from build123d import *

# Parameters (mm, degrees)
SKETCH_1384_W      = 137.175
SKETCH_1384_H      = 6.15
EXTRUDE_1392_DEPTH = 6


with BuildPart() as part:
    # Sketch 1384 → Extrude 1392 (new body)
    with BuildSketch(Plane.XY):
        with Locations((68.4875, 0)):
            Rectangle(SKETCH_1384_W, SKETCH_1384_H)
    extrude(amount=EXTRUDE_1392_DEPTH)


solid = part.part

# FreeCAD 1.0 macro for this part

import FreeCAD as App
import Part
import Sketcher
Q = App.Units.Quantity

doc = App.newDocument("Part")
params = doc.addObject("Spreadsheet::Sheet", "Params")
for row, (alias, value) in enumerate([
    ("sketch1_height", "6.15 mm"),
    ("pad1_length", "6 mm"),
], start=1):
    params.set(f"A{row}", alias)
    params.set(f"B{row}", "=" + value)
    params.setAlias(f"B{row}", alias)

body = doc.addObject("PartDesign::Body", "Body")

# Sketch on XY plane
sketch1 = body.newObject("Sketcher::SketchObject", "Sketch")
sketch1.AttachmentSupport = (doc.getObject("XY_Plane"), [""])
sketch1.MapMode = "FlatFace"
sketch1.addGeometry(Part.LineSegment(App.Vector(-0.1, 3.075, 0), App.Vector(-0.1, -3.075, 0)), False)
sketch1.addGeometry(Part.LineSegment(App.Vector(-0.1, -3.075, 0), App.Vector(137.075, -3.075, 0)), False)
sketch1.addGeometry(Part.LineSegment(App.Vector(137.075, -3.075, 0), App.Vector(137.075, 3.075, 0)), False)
sketch1.addGeometry(Part.LineSegment(App.Vector(137.075, 3.075, 0), App.Vector(-0.1, 3.075, 0)), False)
sketch1.addConstraint(Sketcher.Constraint("Coincident", 0, 2, 1, 1))
sketch1.addConstraint(Sketcher.Constraint("Coincident", 1, 2, 2, 1))
sketch1.addConstraint(Sketcher.Constraint("Coincident", 2, 2, 3, 1))
sketch1.addConstraint(Sketcher.Constraint("Coincident", 3, 2, 0, 1))
sketch1.addConstraint(Sketcher.Constraint("Vertical", 0))
sketch1.addConstraint(Sketcher.Constraint("Horizontal", 1))
sketch1.addConstraint(Sketcher.Constraint("Vertical", 2))
sketch1.addConstraint(Sketcher.Constraint("Horizontal", 3))
sketch1.addConstraint(Sketcher.Constraint("DistanceY", 0, 2, 0, 1, Q("6.15 mm")))
sketch1.addConstraint(Sketcher.Constraint("DistanceX", 0, 2, -1, 1, Q("0.1 mm")))
sketch1.addConstraint(Sketcher.Constraint("DistanceX", 1, 1, 1, 2, Q("137.175 mm")))
sketch1.addConstraint(Sketcher.Constraint("DistanceY", 0, 2, -1, 1, Q("3.075 mm")))
sketch1.setExpression("Constraints[8]", "Params.sketch1_height")
pad1 = body.newObject("PartDesign::Pad", "Pad")
pad1.Profile = sketch1
pad1.setExpression("Length", "Params.pad1_length")

doc.recompute()
